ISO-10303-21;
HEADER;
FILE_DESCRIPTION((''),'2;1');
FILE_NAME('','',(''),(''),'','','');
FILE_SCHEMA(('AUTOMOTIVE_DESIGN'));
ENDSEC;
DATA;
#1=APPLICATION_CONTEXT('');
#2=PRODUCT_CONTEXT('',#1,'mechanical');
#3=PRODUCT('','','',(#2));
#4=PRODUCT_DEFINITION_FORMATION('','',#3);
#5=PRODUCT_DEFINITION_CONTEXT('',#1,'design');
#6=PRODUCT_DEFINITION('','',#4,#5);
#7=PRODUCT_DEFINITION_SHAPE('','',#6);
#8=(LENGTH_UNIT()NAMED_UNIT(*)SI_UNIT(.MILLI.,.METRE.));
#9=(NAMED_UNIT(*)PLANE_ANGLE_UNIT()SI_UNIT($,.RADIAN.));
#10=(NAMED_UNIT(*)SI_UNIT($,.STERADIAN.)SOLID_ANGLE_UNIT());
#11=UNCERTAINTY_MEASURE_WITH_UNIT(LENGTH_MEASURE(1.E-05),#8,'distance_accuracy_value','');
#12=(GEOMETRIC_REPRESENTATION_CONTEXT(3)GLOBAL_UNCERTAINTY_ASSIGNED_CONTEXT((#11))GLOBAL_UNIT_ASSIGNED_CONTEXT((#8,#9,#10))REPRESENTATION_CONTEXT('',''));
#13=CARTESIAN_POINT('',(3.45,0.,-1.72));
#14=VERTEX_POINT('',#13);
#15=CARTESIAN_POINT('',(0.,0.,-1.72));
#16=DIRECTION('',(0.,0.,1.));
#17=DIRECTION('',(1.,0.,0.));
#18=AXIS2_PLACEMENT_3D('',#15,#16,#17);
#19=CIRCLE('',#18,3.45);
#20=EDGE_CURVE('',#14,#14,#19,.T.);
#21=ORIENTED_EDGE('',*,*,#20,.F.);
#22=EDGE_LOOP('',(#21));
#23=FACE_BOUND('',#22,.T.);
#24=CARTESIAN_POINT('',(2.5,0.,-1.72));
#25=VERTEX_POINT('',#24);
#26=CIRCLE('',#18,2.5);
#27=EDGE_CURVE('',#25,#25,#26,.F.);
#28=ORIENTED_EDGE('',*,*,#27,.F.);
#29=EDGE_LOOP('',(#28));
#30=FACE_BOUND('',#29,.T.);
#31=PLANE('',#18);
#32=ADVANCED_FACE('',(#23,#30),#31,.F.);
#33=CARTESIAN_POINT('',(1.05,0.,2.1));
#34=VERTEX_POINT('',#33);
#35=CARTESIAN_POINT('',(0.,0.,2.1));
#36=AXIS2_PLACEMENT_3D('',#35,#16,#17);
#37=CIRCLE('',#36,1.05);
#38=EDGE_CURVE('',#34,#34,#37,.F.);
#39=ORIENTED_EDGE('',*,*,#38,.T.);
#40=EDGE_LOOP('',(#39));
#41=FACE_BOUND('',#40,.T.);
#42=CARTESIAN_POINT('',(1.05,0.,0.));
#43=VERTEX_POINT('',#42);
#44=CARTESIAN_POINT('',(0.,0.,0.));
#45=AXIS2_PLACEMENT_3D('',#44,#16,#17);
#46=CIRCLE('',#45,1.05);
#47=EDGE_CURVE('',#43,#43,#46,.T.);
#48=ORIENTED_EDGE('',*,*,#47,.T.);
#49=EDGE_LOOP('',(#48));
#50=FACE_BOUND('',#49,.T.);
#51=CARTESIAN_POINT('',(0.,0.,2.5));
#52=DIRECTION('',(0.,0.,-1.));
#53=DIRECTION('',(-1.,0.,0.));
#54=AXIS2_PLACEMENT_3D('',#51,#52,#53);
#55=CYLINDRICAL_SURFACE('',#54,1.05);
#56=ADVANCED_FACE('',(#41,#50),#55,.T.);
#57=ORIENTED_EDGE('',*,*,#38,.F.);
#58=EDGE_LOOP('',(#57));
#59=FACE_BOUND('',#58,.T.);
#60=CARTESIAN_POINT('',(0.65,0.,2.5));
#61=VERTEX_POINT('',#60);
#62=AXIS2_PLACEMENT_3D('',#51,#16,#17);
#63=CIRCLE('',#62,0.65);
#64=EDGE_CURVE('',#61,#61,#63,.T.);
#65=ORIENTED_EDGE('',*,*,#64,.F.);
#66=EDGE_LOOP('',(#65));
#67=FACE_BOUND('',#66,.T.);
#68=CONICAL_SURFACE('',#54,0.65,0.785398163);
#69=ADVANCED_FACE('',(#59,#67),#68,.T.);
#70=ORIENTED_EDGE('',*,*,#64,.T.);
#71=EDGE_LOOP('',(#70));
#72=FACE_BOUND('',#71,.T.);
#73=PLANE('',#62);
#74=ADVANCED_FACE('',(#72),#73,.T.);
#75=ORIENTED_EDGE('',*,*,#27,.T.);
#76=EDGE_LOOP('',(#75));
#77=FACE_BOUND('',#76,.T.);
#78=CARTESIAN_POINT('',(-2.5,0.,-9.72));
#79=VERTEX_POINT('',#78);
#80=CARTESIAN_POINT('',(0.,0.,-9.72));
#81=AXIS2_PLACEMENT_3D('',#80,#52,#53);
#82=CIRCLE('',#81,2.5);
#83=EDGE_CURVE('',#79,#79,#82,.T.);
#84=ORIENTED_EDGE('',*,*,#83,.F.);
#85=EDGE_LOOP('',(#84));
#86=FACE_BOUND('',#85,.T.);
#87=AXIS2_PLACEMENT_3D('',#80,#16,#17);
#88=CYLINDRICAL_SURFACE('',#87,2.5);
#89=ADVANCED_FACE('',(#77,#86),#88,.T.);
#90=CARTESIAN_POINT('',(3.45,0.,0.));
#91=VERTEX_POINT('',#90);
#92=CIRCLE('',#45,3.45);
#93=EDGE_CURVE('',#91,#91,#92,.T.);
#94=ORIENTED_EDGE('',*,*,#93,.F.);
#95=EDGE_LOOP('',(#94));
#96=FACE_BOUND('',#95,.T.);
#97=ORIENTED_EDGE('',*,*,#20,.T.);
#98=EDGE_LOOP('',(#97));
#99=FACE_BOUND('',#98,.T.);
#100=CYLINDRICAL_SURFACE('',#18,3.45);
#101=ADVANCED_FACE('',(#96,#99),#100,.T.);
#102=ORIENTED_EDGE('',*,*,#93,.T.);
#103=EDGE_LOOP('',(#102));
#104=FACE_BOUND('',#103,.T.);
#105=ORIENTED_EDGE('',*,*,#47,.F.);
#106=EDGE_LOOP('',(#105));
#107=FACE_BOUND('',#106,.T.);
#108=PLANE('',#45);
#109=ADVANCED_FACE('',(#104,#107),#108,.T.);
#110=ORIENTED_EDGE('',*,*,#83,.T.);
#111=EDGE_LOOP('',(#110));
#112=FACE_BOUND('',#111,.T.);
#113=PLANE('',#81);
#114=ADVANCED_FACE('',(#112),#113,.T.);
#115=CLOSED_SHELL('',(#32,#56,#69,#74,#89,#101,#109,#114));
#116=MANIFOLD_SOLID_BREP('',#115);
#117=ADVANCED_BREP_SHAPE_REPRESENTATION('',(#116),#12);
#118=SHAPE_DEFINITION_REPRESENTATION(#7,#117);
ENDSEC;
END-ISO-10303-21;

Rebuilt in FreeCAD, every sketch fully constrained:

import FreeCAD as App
import Part
import Sketcher
Q = App.Units.Quantity


def edges_at(feature, points):
    """Names of the edges that pass closest to the given points."""
    edges = feature.Shape.Edges
    near = lambda p: min(range(len(edges)), key=lambda i: edges[i].distToShape(Part.Vertex(*p))[0])
    return sorted({f"Edge{near(p) + 1}" for p in points})

doc = App.newDocument("Part")
body = doc.addObject("PartDesign::Body", "Body")

sketch1 = body.newObject("Sketcher::SketchObject", "Sketch")
sketch1.AttachmentSupport = (doc.getObject("XY_Plane"), [""])
sketch1.MapMode = "FlatFace"
sketch1.addGeometry(Part.Circle(App.Vector(0, 0, 0), App.Vector(0, 0, 1), 3.5), False)
sketch1.addConstraint(Sketcher.Constraint("Coincident", 0, 3, -1, 1))
sketch1.addConstraint(Sketcher.Constraint("Diameter", 0, Q("6.9 mm")))
pad1 = body.newObject("PartDesign::Pad", "Pad")
pad1.Profile = sketch1
pad1.Length = 1.72
pad1.Reversed = True

sketch2 = body.newObject("Sketcher::SketchObject", "Sketch001")
sketch2.AttachmentSupport = (doc.getObject("XY_Plane"), [""])
sketch2.MapMode = "FlatFace"
sketch2.AttachmentOffset = App.Placement(App.Vector(0, 0, -1.72), App.Rotation())
sketch2.addGeometry(Part.Circle(App.Vector(0, 0, 0), App.Vector(0, 0, 1), 2.5), False)
sketch2.addConstraint(Sketcher.Constraint("Coincident", 0, 3, -1, 1))
sketch2.addConstraint(Sketcher.Constraint("Diameter", 0, Q("5 mm")))
pad2 = body.newObject("PartDesign::Pad", "Pad001")
pad2.Profile = sketch2
pad2.Length = 8
pad2.Reversed = True

sketch3 = body.newObject("Sketcher::SketchObject", "Sketch002")
sketch3.AttachmentSupport = (doc.getObject("XY_Plane"), [""])
sketch3.MapMode = "FlatFace"
sketch3.addGeometry(Part.Circle(App.Vector(0, 0, 0), App.Vector(0, 0, 1), 1.1), False)
sketch3.addConstraint(Sketcher.Constraint("Coincident", 0, 3, -1, 1))
sketch3.addConstraint(Sketcher.Constraint("Diameter", 0, Q("2.1 mm")))
pad3 = body.newObject("PartDesign::Pad", "Pad002")
pad3.Profile = sketch3
pad3.Length = 2.5
doc.recompute()

chamfer = body.newObject("PartDesign::Chamfer", "Chamfer")
chamfer.Base = (pad3, edges_at(pad3, [(-1.05, 0, 2.5)]))
chamfer.Size = 0.4

doc.recompute()
